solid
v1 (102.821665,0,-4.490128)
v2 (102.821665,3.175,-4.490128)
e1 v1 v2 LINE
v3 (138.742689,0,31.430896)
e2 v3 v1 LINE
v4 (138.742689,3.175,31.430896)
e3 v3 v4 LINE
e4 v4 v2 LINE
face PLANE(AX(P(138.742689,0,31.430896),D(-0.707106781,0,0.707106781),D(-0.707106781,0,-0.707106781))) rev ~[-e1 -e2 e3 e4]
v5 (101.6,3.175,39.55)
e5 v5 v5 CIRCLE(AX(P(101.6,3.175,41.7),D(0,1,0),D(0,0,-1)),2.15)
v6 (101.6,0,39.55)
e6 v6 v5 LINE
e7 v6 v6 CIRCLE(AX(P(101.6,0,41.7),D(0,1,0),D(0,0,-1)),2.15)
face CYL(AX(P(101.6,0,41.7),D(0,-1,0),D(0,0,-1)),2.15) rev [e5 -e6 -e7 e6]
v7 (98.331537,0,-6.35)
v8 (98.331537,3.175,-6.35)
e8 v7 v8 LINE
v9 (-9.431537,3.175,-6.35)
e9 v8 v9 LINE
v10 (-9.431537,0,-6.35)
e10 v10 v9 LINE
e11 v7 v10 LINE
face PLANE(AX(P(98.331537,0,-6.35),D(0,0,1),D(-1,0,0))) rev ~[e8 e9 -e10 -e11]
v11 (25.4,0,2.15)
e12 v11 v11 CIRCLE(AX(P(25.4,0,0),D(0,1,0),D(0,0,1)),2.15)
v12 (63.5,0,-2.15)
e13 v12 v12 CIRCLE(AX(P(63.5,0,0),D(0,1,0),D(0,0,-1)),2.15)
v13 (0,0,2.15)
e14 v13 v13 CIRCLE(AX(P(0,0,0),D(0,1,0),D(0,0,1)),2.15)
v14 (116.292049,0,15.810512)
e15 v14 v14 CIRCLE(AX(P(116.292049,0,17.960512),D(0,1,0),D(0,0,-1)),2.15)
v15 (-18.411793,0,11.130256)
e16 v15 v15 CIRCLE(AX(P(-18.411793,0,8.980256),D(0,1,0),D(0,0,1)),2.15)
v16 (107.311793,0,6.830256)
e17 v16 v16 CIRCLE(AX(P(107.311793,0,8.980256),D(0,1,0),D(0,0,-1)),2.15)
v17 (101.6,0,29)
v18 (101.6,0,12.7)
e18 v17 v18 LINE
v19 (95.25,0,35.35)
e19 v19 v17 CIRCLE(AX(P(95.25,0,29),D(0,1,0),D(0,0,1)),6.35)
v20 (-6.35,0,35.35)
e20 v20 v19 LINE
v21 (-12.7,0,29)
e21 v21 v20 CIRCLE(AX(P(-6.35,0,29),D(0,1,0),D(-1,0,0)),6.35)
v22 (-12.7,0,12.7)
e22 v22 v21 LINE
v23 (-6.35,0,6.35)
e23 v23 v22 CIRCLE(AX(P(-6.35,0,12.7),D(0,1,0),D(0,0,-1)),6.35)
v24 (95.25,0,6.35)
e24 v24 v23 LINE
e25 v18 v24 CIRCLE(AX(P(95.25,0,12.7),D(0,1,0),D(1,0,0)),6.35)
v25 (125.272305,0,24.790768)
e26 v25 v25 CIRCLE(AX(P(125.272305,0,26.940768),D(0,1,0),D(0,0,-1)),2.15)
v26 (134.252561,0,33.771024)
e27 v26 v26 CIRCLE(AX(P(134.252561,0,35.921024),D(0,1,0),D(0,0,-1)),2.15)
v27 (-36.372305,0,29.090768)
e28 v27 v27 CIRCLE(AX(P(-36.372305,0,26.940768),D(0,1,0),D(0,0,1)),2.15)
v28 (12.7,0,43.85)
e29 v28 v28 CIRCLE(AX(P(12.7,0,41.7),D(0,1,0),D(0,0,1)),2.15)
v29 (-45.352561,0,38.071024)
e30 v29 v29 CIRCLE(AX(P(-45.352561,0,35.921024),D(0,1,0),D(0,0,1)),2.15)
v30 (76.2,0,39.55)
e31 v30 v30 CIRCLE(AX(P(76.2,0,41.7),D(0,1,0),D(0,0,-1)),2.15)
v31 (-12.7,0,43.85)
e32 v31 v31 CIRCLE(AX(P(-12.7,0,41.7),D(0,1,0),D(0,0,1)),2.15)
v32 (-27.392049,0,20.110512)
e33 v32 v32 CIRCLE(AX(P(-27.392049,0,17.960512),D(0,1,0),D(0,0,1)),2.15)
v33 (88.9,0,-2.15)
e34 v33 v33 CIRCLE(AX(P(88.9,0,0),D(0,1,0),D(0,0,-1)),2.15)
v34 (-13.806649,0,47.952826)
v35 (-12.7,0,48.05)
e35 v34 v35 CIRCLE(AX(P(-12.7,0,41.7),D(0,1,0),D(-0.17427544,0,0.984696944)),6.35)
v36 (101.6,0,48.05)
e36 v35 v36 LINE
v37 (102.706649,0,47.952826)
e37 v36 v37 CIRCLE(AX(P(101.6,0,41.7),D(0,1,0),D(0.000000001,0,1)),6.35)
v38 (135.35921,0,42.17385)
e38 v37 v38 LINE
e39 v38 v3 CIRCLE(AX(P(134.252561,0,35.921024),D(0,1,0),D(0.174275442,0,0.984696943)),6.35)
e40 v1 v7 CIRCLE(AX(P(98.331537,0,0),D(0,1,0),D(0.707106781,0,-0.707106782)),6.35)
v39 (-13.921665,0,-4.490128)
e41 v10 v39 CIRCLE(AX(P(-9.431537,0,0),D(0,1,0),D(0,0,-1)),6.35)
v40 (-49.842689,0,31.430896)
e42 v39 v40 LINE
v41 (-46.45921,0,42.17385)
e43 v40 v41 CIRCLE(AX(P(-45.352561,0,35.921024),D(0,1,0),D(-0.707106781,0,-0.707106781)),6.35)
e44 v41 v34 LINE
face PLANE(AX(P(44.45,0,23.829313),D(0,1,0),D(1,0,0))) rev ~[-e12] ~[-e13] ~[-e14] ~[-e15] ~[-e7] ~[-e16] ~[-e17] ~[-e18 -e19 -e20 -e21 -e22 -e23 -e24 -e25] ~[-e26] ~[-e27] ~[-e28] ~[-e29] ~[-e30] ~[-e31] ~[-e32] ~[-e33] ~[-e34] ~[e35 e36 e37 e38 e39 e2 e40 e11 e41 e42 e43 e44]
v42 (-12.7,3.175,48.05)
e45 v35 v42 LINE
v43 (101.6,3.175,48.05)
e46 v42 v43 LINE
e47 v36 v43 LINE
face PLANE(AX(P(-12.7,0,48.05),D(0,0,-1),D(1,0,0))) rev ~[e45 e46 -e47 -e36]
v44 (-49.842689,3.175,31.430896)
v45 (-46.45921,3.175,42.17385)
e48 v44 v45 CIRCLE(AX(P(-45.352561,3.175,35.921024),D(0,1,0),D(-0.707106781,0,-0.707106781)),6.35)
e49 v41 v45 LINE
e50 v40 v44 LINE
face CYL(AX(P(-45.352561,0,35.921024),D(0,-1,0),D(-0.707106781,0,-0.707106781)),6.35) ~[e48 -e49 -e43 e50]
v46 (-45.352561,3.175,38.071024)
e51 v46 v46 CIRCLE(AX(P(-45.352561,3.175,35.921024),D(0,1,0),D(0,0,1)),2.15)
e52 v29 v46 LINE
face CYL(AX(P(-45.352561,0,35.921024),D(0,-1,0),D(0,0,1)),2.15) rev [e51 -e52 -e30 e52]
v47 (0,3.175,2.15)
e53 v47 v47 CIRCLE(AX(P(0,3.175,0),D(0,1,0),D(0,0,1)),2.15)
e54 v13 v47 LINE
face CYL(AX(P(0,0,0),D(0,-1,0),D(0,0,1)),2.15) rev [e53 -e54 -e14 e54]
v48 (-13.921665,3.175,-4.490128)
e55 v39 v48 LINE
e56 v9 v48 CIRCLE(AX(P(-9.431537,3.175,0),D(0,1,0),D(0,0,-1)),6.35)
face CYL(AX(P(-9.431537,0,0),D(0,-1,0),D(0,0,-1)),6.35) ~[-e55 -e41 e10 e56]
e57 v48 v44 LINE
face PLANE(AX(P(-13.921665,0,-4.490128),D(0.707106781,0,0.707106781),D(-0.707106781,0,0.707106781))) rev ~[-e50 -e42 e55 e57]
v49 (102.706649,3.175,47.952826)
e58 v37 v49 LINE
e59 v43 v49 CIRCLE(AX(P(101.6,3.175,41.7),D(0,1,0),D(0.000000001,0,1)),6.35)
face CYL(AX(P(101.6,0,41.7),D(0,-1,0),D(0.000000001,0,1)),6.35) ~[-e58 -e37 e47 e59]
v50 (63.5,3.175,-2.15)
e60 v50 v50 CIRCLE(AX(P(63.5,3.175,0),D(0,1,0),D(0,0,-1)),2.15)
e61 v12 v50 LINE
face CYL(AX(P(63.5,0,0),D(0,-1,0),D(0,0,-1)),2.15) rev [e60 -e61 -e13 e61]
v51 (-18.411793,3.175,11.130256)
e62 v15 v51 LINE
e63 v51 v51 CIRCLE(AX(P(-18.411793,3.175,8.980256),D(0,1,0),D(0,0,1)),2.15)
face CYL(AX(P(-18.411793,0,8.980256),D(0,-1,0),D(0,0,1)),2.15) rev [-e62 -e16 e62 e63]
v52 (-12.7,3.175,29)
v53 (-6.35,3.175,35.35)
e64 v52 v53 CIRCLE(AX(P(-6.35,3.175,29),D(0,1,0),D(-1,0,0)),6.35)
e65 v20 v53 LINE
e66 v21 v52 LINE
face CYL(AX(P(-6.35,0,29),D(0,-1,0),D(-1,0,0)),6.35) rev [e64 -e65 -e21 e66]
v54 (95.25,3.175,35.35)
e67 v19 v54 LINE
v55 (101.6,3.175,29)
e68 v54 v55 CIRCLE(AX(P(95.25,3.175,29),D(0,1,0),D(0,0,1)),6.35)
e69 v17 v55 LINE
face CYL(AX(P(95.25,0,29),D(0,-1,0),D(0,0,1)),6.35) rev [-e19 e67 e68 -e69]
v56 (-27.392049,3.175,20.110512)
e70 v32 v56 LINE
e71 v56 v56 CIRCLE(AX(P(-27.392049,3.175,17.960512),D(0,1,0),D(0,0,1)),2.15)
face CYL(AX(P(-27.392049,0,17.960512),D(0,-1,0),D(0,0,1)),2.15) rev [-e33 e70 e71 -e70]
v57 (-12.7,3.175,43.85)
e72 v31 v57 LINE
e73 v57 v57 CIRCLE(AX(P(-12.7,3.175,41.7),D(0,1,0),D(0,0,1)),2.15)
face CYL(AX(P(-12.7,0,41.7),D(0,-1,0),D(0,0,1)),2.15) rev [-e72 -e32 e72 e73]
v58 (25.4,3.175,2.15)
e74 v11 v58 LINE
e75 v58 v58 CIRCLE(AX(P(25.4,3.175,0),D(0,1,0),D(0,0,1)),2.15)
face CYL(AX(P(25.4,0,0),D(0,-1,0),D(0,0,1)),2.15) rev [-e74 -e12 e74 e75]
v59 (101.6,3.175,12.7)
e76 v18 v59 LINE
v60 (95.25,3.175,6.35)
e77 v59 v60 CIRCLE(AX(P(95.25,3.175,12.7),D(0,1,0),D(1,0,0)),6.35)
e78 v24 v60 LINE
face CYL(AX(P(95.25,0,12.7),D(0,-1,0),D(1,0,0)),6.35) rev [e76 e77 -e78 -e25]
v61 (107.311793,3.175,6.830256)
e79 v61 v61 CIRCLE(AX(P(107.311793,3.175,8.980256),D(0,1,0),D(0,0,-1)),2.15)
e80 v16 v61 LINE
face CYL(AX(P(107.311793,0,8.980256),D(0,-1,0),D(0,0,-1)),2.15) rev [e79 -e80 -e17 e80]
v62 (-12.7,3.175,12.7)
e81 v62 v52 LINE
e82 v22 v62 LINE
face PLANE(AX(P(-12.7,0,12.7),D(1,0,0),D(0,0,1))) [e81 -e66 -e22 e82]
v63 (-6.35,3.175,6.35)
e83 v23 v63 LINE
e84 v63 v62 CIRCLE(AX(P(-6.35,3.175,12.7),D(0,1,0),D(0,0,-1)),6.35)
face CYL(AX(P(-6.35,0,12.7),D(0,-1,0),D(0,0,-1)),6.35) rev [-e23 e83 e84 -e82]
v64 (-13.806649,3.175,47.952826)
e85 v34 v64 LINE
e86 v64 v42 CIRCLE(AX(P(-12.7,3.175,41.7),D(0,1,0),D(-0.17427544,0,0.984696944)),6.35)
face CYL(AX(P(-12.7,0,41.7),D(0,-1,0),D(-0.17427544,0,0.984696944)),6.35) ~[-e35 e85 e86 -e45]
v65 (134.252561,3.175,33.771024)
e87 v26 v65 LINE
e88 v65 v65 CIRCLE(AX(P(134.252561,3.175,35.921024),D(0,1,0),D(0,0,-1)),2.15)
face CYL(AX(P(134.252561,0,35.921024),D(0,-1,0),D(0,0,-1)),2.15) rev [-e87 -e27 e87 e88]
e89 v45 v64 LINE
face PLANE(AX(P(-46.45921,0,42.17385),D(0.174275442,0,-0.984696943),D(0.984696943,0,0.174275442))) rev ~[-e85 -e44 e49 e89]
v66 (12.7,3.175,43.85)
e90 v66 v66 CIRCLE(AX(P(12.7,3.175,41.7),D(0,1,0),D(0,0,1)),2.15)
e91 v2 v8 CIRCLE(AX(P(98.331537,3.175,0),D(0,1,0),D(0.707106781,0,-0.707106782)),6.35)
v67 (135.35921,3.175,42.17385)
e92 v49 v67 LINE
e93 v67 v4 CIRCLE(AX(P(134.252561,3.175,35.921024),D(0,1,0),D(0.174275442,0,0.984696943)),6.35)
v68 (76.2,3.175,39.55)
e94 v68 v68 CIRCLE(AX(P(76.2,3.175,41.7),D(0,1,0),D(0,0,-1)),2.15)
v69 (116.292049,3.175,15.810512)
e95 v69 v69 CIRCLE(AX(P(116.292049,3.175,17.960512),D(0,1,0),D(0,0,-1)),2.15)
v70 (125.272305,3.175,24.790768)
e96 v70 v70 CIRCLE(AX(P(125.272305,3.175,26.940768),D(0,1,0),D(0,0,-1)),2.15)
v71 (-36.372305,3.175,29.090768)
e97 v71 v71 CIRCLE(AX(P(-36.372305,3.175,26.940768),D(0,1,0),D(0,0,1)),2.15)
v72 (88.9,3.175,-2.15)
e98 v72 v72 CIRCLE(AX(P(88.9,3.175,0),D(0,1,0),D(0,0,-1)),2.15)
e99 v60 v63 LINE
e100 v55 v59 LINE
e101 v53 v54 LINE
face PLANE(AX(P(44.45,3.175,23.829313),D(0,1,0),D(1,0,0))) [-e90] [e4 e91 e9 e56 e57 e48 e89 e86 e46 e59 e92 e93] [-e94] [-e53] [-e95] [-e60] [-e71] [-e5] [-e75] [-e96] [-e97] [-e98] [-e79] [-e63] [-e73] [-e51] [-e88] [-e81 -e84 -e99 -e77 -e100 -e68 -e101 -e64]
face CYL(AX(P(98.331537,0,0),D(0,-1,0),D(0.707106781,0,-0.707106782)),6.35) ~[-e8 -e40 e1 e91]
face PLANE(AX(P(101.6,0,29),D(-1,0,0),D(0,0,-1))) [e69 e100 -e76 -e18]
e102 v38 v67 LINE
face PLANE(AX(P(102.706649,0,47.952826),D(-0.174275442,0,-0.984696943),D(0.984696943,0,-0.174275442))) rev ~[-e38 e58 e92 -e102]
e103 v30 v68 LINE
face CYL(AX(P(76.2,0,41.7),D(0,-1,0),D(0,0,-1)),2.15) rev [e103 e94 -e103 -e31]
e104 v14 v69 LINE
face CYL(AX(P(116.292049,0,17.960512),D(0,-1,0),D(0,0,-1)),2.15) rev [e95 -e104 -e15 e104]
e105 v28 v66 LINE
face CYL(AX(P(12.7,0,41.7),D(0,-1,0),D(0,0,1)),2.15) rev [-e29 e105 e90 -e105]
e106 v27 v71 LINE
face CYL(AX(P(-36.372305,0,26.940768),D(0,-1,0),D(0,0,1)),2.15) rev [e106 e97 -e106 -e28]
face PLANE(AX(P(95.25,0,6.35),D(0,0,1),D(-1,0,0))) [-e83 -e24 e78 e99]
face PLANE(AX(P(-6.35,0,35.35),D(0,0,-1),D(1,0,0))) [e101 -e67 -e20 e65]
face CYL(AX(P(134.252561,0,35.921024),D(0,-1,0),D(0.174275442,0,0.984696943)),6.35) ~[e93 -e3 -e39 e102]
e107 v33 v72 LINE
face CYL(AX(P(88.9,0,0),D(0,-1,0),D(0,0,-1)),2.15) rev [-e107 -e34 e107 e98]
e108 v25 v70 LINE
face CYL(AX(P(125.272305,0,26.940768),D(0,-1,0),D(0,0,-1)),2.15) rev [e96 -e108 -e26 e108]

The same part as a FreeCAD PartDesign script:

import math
import FreeCAD as App
import Part
import Sketcher
from FreeCAD import Vector
Q = App.Units.Quantity

doc = App.newDocument("Part")
params = doc.addObject("Spreadsheet::Sheet", "Params")
for row, (alias, value) in enumerate([
    ("sketch1_width", "4 in"),
    ("sketch1_radius", "0.25 in"),
    ("sketch1_length", "2 in"),
    ("pad1_length", "0.125 in"),
], start=1):
    params.set(f"A{row}", alias)
    params.set(f"B{row}", "=" + value)
    params.setAlias(f"B{row}", alias)

body = doc.addObject("PartDesign::Body", "Body")

# Sketch on XZ plane
sketch1 = body.newObject("Sketcher::SketchObject", "Sketch")
sketch1.AttachmentSupport = (doc.getObject("XZ_Plane"), [""])
sketch1.MapMode = "FlatFace"
sketch1.addGeometry(Part.LineSegment(Vector(98.3, -6.3, 0), Vector(-9.4, -6.3, 0)), False)
sketch1.addGeometry(Part.ArcOfCircle(Part.Circle(Vector(-9.4, 0, 0), Vector(0, 0, 1), 6.4), math.radians(-135), math.radians(-90)), False)
sketch1.addGeometry(Part.LineSegment(Vector(-13.9, -4.5, 0), Vector(-49.8, 31.4, 0)), False)
sketch1.addGeometry(Part.ArcOfCircle(Part.Circle(Vector(-45.4, 35.9, 0), Vector(0, 0, 1), 6.3), math.radians(100), math.radians(225)), False)
sketch1.addGeometry(Part.LineSegment(Vector(-46.5, 42.2, 0), Vector(-13.8, 48, 0)), False)
sketch1.addGeometry(Part.ArcOfCircle(Part.Circle(Vector(-12.7, 41.7, 0), Vector(0, 0, 1), 6.4), math.radians(90), math.radians(100.04)), False)
sketch1.addGeometry(Part.LineSegment(Vector(-12.7, 48, 0), Vector(101.6, 48, 0)), False)
sketch1.addGeometry(Part.ArcOfCircle(Part.Circle(Vector(101.6, 41.7, 0), Vector(0, 0, 1), 6.4), math.radians(79.96), math.radians(90)), False)
sketch1.addGeometry(Part.LineSegment(Vector(102.7, 48, 0), Vector(135.4, 42.2, 0)), False)
sketch1.addGeometry(Part.ArcOfCircle(Part.Circle(Vector(134.3, 35.9, 0), Vector(0, 0, 1), 6.3), math.radians(-45), math.radians(80)), False)
sketch1.addGeometry(Part.LineSegment(Vector(138.7, 31.4, 0), Vector(102.8, -4.5, 0)), False)
sketch1.addGeometry(Part.ArcOfCircle(Part.Circle(Vector(98.3, 0, 0), Vector(0, 0, 1), 6.4), math.radians(-90), math.radians(-45)), False)
sketch1.addGeometry(Part.Circle(Vector(-12.7, 41.7, 0), Vector(0, 0, 1), 2.1), False)
sketch1.addGeometry(Part.Circle(Vector(-45.4, 35.9, 0), Vector(0, 0, 1), 2.1), False)
sketch1.addGeometry(Part.Circle(Vector(12.7, 41.7, 0), Vector(0, 0, 1), 2.1), False)
sketch1.addGeometry(Part.Circle(Vector(-36.4, 26.9, 0), Vector(0, 0, 1), 2.1), False)
sketch1.addGeometry(Part.Circle(Vector(76.2, 41.7, 0), Vector(0, 0, 1), 2.1), False)
sketch1.addGeometry(Part.Circle(Vector(101.6, 41.7, 0), Vector(0, 0, 1), 2.1), False)
sketch1.addGeometry(Part.Circle(Vector(134.3, 35.9, 0), Vector(0, 0, 1), 2.1), False)
sketch1.addGeometry(Part.Circle(Vector(125.3, 26.9, 0), Vector(0, 0, 1), 2.1), False)
sketch1.addGeometry(Part.Circle(Vector(-27.4, 18, 0), Vector(0, 0, 1), 2.1), False)
sketch1.addGeometry(Part.Circle(Vector(-18.4, 9, 0), Vector(0, 0, 1), 2.1), False)
sketch1.addGeometry(Part.Circle(Vector(0, 0, 0), Vector(0, 0, 1), 2.1), False)
sketch1.addGeometry(Part.Circle(Vector(25.4, 0, 0), Vector(0, 0, 1), 2.1), False)
sketch1.addGeometry(Part.LineSegment(Vector(-6.3, 6.3, 0), Vector(95.2, 6.3, 0)), False)
sketch1.addGeometry(Part.ArcOfCircle(Part.Circle(Vector(95.3, 12.7, 0), Vector(0, 0, 1), 6.3), math.radians(-90), math.radians(0)), False)
sketch1.addGeometry(Part.LineSegment(Vector(101.6, 12.7, 0), Vector(101.6, 29, 0)), False)
sketch1.addGeometry(Part.ArcOfCircle(Part.Circle(Vector(95.3, 29, 0), Vector(0, 0, 1), 6.3), math.radians(0), math.radians(90)), False)
sketch1.addGeometry(Part.LineSegment(Vector(95.2, 35.4, 0), Vector(-6.3, 35.4, 0)), False)
sketch1.addGeometry(Part.ArcOfCircle(Part.Circle(Vector(-6.4, 29, 0), Vector(0, 0, 1), 6.3), math.radians(90), math.radians(180)), False)
sketch1.addGeometry(Part.LineSegment(Vector(-12.7, 29, 0), Vector(-12.7, 12.7, 0)), False)
sketch1.addGeometry(Part.ArcOfCircle(Part.Circle(Vector(-6.4, 12.7, 0), Vector(0, 0, 1), 6.3), math.radians(180), math.radians(270)), False)
sketch1.addGeometry(Part.Circle(Vector(116.3, 18, 0), Vector(0, 0, 1), 2.1), False)
sketch1.addGeometry(Part.Circle(Vector(63.5, 0, 0), Vector(0, 0, 1), 2.1), False)
sketch1.addGeometry(Part.Circle(Vector(88.9, 0, 0), Vector(0, 0, 1), 2.1), False)
sketch1.addGeometry(Part.Circle(Vector(107.3, 9, 0), Vector(0, 0, 1), 2.1), False)
sketch1.addConstraint(Sketcher.Constraint("Tangent", 0, 2, 1, 2))
sketch1.addConstraint(Sketcher.Constraint("Tangent", 1, 1, 2, 1))
sketch1.addConstraint(Sketcher.Constraint("Tangent", 2, 2, 3, 2))
sketch1.addConstraint(Sketcher.Constraint("Tangent", 3, 1, 4, 1))
sketch1.addConstraint(Sketcher.Constraint("Tangent", 4, 2, 5, 2))
sketch1.addConstraint(Sketcher.Constraint("Tangent", 5, 1, 6, 1))
sketch1.addConstraint(Sketcher.Constraint("Tangent", 6, 2, 7, 2))
sketch1.addConstraint(Sketcher.Constraint("Tangent", 7, 1, 8, 1))
sketch1.addConstraint(Sketcher.Constraint("Tangent", 8, 2, 9, 2))
sketch1.addConstraint(Sketcher.Constraint("Tangent", 9, 1, 10, 1))
sketch1.addConstraint(Sketcher.Constraint("Tangent", 10, 2, 11, 2))
sketch1.addConstraint(Sketcher.Constraint("Tangent", 11, 1, 0, 1))
sketch1.addConstraint(Sketcher.Constraint("Tangent", 24, 2, 25, 1))
sketch1.addConstraint(Sketcher.Constraint("Tangent", 25, 2, 26, 1))
sketch1.addConstraint(Sketcher.Constraint("Tangent", 26, 2, 27, 1))
sketch1.addConstraint(Sketcher.Constraint("Tangent", 27, 2, 28, 1))
sketch1.addConstraint(Sketcher.Constraint("Tangent", 28, 2, 29, 1))
sketch1.addConstraint(Sketcher.Constraint("Tangent", 29, 2, 30, 1))
sketch1.addConstraint(Sketcher.Constraint("Tangent", 30, 2, 31, 1))
sketch1.addConstraint(Sketcher.Constraint("Tangent", 31, 2, 24, 1))
sketch1.addConstraint(Sketcher.Constraint("Horizontal", 0))
sketch1.addConstraint(Sketcher.Constraint("Horizontal", 6))
sketch1.addConstraint(Sketcher.Constraint("Horizontal", 24))
sketch1.addConstraint(Sketcher.Constraint("Vertical", 26))
sketch1.addConstraint(Sketcher.Constraint("Horizontal", 28))
sketch1.addConstraint(Sketcher.Constraint("Vertical", 30))
sketch1.addConstraint(Sketcher.Constraint("Coincident", 22, 3, -1, 1))
sketch1.addConstraint(Sketcher.Constraint("Coincident", 12, 3, 5, 3))
sketch1.addConstraint(Sketcher.Constraint("Coincident", 13, 3, 3, 3))
sketch1.addConstraint(Sketcher.Constraint("Coincident", 17, 3, 7, 3))
sketch1.addConstraint(Sketcher.Constraint("Coincident", 18, 3, 9, 3))
sketch1.addConstraint(Sketcher.Constraint("Equal", 1, 3))
sketch1.addConstraint(Sketcher.Constraint("Equal", 3, 5))
sketch1.addConstraint(Sketcher.Constraint("Equal", 5, 7))
sketch1.addConstraint(Sketcher.Constraint("Equal", 7, 9))
sketch1.addConstraint(Sketcher.Constraint("Equal", 9, 11))
sketch1.addConstraint(Sketcher.Constraint("Equal", 12, 13))
sketch1.addConstraint(Sketcher.Constraint("Equal", 13, 14))
sketch1.addConstraint(Sketcher.Constraint("Equal", 14, 15))
sketch1.addConstraint(Sketcher.Constraint("Equal", 15, 16))
sketch1.addConstraint(Sketcher.Constraint("Equal", 16, 17))
sketch1.addConstraint(Sketcher.Constraint("Equal", 17, 18))
sketch1.addConstraint(Sketcher.Constraint("Equal", 18, 19))
sketch1.addConstraint(Sketcher.Constraint("Equal", 19, 20))
sketch1.addConstraint(Sketcher.Constraint("Equal", 20, 21))
sketch1.addConstraint(Sketcher.Constraint("Equal", 21, 22))
sketch1.addConstraint(Sketcher.Constraint("Equal", 22, 23))
sketch1.addConstraint(Sketcher.Constraint("Equal", 11, 25))
sketch1.addConstraint(Sketcher.Constraint("Equal", 25, 27))
sketch1.addConstraint(Sketcher.Constraint("Equal", 27, 29))
sketch1.addConstraint(Sketcher.Constraint("Equal", 29, 31))
sketch1.addConstraint(Sketcher.Constraint("Equal", 23, 32))
sketch1.addConstraint(Sketcher.Constraint("Equal", 32, 33))
sketch1.addConstraint(Sketcher.Constraint("Equal", 33, 34))
sketch1.addConstraint(Sketcher.Constraint("Equal", 34, 35))
sketch1.addConstraint(Sketcher.Constraint("Symmetric", 5, 3, 14, 3, -2))
sketch1.addConstraint(Sketcher.Constraint("PointOnObject", 1, 3, -1))
sketch1.addConstraint(Sketcher.Constraint("PointOnObject", 23, 3, -1))
sketch1.addConstraint(Sketcher.Constraint("PointOnObject", 33, 3, -1))
sketch1.addConstraint(Sketcher.Constraint("PointOnObject", 34, 3, -1))
sketch1.addConstraint(Sketcher.Constraint("Perpendicular", 2, 10))
sketch1.addConstraint(Sketcher.Constraint("Horizontal", 3, 3, 9, 3))
sketch1.addConstraint(Sketcher.Constraint("Horizontal", 14, 3, 16, 3))
sketch1.addConstraint(Sketcher.Constraint("Horizontal", 15, 3, 19, 3))
sketch1.addConstraint(Sketcher.Constraint("Horizontal", 20, 3, 32, 3))
sketch1.addConstraint(Sketcher.Constraint("Horizontal", 21, 3, 35, 3))
sketch1.addConstraint(Sketcher.Constraint("Horizontal", 4, 2, 7, 1))
sketch1.addConstraint(Sketcher.Constraint("Horizontal", 2, 2, 9, 1))
sketch1.addConstraint(Sketcher.Constraint("Vertical", 6, 2, 25, 2))
sketch1.addConstraint(Sketcher.Constraint("Vertical", 5, 1, 29, 2))
sketch1.addConstraint(Sketcher.Constraint("DistanceX", 24, 1, 24, 2, Q("4 in")))
sketch1.addConstraint(Sketcher.Constraint("Radius", 1, Q("0.25 in")))
sketch1.addConstraint(Sketcher.Constraint("Distance", 2, Q("2 in")))
sketch1.addConstraint(Sketcher.Constraint("DistanceX", -1, 1, 7, 3, Q("4 in")))
sketch1.addConstraint(Sketcher.Constraint("DistanceX", -1, 1, 16, 3, Q("3 in")))
sketch1.addConstraint(Sketcher.Constraint("DistanceX", -1, 1, 23, 3, Q("1 in")))
sketch1.addConstraint(Sketcher.Constraint("DistanceX", 33, 3, 34, 3, Q("1 in")))
sketch1.addConstraint(Sketcher.Constraint("DistanceY", -1, 1, 25, 3, Q("0.5 in")))
sketch1.addConstraint(Sketcher.Constraint("DistanceX", -1, 1, 33, 3, Q("2.5 in")))
sketch1.addConstraint(Sketcher.Constraint("DistanceY", 27, 3, 7, 3, Q("0.5 in")))
sketch1.addConstraint(Sketcher.Constraint("Diameter", 12, Q("4.3 mm")))
sketch1.addConstraint(Sketcher.Constraint("DistanceY", 26, 1, 26, 2, Q("16.3 mm")))
sketch1.addConstraint(Sketcher.Constraint("Distance", 4, Q("33.160011 mm")))
sketch1.addConstraint(Sketcher.Constraint("DistanceY", -1, 1, 15, 3, Q("26.940768 mm")))
sketch1.addConstraint(Sketcher.Constraint("DistanceX", 20, 3, -1, 1, Q("27.392049 mm")))
sketch1.addConstraint(Sketcher.Constraint("DistanceX", -1, 1, 32, 3, Q("116.292049 mm")))
sketch1.addConstraint(Sketcher.Constraint("DistanceX", 15, 3, 1, 3, Q("26.940768 mm")))
sketch1.addConstraint(Sketcher.Constraint("DistanceX", 11, 3, 19, 3, Q("26.940768 mm")))
sketch1.addConstraint(Sketcher.Constraint("DistanceX", 21, 3, 1, 1, Q("4.490128 mm")))
sketch1.addConstraint(Sketcher.Constraint("DistanceX", 10, 2, 35, 3, Q("4.490128 mm")))
sketch1.addConstraint(Sketcher.Constraint("DistanceY", 10, 2, 32, 3, Q("22.45064 mm")))
sketch1.addConstraint(Sketcher.Constraint("DistanceY", -1, 1, 21, 3, Q("8.980256 mm")))
sketch1.setExpression("Constraints[70]", "Params.sketch1_width")
sketch1.setExpression("Constraints[71]", "Params.sketch1_radius")
sketch1.setExpression("Constraints[72]", "Params.sketch1_length")
pad1 = body.newObject("PartDesign::Pad", "Pad")
pad1.Profile = sketch1
pad1.setExpression("Length", "Params.pad1_length")
pad1.Reversed = True

doc.recompute()
